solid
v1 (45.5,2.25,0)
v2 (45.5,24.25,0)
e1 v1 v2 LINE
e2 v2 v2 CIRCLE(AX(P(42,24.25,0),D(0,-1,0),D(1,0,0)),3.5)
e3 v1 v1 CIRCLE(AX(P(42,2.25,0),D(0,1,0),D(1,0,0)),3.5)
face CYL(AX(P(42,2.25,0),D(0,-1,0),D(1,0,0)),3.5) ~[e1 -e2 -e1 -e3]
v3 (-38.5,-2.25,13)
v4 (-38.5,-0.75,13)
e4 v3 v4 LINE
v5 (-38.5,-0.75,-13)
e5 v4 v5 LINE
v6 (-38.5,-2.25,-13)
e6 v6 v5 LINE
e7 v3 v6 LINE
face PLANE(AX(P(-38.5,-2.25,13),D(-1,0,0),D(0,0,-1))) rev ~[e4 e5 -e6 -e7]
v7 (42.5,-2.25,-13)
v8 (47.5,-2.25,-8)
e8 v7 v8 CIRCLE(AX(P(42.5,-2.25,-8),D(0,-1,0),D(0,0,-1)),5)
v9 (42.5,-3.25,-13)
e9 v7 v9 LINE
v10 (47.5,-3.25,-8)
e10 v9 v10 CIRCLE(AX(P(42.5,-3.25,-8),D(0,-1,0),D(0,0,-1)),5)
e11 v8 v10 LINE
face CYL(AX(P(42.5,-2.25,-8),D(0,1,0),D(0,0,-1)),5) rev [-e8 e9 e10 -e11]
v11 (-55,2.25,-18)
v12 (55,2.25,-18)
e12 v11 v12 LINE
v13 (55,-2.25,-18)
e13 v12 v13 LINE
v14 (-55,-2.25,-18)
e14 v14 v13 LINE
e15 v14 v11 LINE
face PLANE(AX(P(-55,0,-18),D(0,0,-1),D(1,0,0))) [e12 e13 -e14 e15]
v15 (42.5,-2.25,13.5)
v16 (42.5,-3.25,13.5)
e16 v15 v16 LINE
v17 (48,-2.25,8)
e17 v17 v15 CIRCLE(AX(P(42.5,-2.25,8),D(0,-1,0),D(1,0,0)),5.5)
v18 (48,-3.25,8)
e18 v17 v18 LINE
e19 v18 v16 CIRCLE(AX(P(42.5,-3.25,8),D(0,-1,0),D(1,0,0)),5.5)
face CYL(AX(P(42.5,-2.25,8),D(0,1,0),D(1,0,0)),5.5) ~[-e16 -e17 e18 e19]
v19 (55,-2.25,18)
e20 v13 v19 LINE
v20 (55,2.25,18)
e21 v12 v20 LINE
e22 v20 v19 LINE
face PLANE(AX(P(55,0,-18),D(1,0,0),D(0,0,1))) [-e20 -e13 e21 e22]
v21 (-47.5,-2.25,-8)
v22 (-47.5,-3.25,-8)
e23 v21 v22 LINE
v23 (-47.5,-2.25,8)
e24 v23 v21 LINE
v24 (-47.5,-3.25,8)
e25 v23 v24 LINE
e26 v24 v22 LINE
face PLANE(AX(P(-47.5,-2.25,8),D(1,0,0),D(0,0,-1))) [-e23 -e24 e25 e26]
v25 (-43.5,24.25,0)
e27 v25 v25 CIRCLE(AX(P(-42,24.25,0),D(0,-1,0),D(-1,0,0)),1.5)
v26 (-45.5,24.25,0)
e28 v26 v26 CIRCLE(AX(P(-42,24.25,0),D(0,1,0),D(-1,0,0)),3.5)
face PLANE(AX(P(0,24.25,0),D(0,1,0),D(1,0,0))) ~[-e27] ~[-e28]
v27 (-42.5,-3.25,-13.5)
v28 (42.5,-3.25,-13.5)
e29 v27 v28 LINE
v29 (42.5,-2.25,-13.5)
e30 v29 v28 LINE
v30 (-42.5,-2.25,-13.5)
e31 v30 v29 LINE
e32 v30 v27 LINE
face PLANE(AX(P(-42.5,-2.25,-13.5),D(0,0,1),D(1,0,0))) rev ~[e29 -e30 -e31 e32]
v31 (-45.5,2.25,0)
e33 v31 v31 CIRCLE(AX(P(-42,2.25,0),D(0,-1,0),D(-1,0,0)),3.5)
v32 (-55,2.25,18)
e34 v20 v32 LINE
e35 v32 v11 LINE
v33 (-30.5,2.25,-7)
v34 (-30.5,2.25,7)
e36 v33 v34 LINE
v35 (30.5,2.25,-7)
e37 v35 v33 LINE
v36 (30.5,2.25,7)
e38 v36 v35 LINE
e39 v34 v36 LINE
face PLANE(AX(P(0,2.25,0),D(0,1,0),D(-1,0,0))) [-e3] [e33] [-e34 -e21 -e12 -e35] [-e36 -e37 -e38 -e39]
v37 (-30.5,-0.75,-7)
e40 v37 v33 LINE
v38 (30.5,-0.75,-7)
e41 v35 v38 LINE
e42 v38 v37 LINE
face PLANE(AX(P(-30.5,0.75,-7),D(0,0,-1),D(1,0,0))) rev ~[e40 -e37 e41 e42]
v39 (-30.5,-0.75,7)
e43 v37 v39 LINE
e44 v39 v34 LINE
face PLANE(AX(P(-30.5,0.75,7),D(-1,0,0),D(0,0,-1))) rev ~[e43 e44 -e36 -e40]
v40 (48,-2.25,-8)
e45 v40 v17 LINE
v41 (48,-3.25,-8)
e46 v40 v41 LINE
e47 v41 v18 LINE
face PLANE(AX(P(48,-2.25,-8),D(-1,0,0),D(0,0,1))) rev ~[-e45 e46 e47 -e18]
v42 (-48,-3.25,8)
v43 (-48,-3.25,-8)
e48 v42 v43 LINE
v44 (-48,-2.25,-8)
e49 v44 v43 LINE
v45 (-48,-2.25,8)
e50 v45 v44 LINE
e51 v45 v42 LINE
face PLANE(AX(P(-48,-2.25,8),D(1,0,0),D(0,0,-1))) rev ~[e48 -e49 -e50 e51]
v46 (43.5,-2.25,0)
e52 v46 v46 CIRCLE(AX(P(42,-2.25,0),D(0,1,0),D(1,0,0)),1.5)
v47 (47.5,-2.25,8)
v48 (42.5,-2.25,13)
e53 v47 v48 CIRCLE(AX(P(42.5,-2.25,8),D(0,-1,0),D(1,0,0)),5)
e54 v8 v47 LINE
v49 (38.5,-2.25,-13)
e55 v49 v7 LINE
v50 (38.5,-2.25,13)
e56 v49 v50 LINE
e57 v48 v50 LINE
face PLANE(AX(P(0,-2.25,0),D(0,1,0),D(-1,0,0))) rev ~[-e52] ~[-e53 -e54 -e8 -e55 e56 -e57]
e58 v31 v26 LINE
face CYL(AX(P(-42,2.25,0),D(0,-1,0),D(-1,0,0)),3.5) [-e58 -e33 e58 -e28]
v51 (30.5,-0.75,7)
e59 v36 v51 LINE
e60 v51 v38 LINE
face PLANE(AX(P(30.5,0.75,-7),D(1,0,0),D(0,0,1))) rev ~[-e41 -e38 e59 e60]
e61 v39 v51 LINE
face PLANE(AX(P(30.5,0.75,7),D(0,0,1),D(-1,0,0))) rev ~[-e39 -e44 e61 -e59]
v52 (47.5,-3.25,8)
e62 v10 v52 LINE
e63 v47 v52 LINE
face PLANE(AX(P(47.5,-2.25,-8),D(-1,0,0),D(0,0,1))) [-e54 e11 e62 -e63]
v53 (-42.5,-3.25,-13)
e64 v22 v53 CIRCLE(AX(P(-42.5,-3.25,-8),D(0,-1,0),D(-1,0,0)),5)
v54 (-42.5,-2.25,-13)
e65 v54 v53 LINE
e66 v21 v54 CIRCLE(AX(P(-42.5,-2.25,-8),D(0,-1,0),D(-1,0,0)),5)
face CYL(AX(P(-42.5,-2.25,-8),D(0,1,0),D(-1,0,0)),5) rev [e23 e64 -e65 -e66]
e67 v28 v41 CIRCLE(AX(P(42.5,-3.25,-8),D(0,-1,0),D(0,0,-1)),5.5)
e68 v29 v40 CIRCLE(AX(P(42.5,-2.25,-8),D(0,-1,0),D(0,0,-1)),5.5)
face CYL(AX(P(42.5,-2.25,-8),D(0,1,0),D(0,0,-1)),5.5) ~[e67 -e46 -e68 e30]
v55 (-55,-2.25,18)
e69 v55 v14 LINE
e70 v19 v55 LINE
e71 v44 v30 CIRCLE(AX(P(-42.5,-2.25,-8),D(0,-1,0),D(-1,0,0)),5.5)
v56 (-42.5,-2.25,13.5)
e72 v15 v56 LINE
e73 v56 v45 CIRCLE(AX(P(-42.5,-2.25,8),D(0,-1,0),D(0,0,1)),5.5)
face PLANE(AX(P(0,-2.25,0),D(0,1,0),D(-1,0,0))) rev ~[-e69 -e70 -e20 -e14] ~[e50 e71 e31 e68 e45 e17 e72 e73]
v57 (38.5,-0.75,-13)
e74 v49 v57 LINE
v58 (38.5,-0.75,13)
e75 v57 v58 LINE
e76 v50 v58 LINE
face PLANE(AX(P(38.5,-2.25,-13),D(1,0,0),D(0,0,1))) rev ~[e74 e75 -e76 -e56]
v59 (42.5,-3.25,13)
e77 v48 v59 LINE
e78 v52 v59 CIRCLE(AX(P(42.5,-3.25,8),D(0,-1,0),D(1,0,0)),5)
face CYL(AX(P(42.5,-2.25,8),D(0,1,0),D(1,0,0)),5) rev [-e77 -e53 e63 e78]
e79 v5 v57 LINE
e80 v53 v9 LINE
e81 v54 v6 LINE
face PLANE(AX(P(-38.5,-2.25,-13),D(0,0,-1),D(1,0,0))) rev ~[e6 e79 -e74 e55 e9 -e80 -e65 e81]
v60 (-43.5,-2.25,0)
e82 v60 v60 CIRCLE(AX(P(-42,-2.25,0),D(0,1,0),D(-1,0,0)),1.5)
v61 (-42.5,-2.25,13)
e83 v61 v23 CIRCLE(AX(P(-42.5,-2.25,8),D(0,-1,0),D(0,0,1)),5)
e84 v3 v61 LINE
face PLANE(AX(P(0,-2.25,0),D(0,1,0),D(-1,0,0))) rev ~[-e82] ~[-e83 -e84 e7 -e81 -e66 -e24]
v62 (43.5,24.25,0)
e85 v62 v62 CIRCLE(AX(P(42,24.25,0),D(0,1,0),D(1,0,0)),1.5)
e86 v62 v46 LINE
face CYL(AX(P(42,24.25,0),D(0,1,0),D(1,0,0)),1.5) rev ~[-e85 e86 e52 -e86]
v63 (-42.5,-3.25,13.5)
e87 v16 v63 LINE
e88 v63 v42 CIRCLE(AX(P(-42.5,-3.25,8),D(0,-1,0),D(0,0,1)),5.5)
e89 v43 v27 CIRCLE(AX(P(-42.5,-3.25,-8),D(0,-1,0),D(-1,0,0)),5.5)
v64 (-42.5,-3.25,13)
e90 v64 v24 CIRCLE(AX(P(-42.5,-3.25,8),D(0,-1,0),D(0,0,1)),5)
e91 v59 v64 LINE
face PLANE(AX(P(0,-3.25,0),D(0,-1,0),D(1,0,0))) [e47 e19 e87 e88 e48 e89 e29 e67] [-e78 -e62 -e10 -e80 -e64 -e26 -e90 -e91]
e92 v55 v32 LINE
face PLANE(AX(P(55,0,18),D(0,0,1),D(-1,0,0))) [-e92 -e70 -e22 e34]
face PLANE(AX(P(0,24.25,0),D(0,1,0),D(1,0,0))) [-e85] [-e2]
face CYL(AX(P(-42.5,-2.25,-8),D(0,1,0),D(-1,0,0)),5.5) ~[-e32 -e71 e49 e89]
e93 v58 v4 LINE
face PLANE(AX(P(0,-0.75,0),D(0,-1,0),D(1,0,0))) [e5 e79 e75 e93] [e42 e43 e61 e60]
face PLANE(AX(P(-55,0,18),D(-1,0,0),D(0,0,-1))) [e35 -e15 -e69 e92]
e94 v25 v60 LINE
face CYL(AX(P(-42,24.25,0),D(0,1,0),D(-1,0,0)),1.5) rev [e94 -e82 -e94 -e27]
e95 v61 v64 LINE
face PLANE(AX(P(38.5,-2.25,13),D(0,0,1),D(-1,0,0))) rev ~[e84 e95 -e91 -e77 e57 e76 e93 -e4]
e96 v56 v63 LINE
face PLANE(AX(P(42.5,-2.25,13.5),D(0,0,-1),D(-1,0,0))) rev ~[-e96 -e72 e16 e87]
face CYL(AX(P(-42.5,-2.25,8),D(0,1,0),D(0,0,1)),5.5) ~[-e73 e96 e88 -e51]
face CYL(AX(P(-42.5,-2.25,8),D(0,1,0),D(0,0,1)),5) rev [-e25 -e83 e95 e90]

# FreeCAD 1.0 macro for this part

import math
import FreeCAD as App
import Part
import Sketcher


def add_polygon(sketch, points):
    """Adds a closed chain of lines whose ends are joined by coincident constraints."""
    first, n = sketch.GeometryCount, len(points)
    for a, b in zip(points, points[1:] + points[:1]):
        sketch.addGeometry(Part.LineSegment(App.Vector(*a, 0), App.Vector(*b, 0)), False)
    for i in range(n):
        sketch.addConstraint(Sketcher.Constraint("Coincident", first + i, 2, first + (i + 1) % n, 1))

doc = App.newDocument("Part")
params = doc.addObject("Spreadsheet::Sheet", "Params")
for row, (alias, value) in enumerate([
    ("sketch1_width", "110 mm"),
    ("sketch1_height", "36 mm"),
    ("pad1_length", "4.5 mm"),
    ("sketch2_width", "61 mm"),
    ("sketch2_height", "14 mm"),
    ("sketch3_diameter", "7 mm"),
    ("pad2_length", "22 mm"),
    ("sketch4_diameter", "3 mm"),
    ("sketch5_radius", "5 mm"),
    ("sketch5_radius2", "5.5 mm"),
    ("sketch5_width", "85 mm"),
    ("sketch5_height", "16 mm"),
    ("pad3_length", "1 mm"),
    ("sketch6_width", "77 mm"),
    ("sketch6_height", "26 mm"),
    ("pocket3_length", "1.5 mm"),
], start=1):
    params.set(f"A{row}", alias)
    params.set(f"B{row}", "=" + value)
    params.setAlias(f"B{row}", alias)

body = doc.addObject("PartDesign::Body", "Body")

sketch1 = doc.addObject("Sketcher::SketchObject", "Sketch")
body.addObject(sketch1)
sketch1.AttachmentSupport = (doc.XZ_Plane, [""])
sketch1.MapMode = "FlatFace"
add_polygon(sketch1, [(55, -18), (-55, -18), (-55, 18), (55, 18)])
sketch1.addConstraint([
    Sketcher.Constraint("Horizontal", 0),
    Sketcher.Constraint("Vertical", 1),
    Sketcher.Constraint("Horizontal", 2),
    Sketcher.Constraint("Vertical", 3),
    Sketcher.Constraint("Symmetric", 0, 2, 2, 2, -1, 1),
    Sketcher.Constraint("DistanceX", 0, 2, 0, 1, 110.0),
    Sketcher.Constraint("DistanceY", 1, 1, 1, 2, 36.0),
])
sketch1.setExpression("Constraints[9]", "Params.sketch1_width")
sketch1.setExpression("Constraints[10]", "Params.sketch1_height")
pad1 = doc.addObject("PartDesign::Pad", "Pad")
body.addObject(pad1)
pad1.Profile = sketch1
pad1.setExpression("Length", "Params.pad1_length")
pad1.Midplane = True

sketch2 = doc.addObject("Sketcher::SketchObject", "Sketch001")
body.addObject(sketch2)
sketch2.AttachmentSupport = (doc.XZ_Plane, [""])
sketch2.MapMode = "FlatFace"
sketch2.AttachmentOffset = App.Placement(App.Vector(0, 0, -0.75), App.Rotation())
add_polygon(sketch2, [(30, -7), (-30, -7), (-30, 7), (30, 7)])
sketch2.addConstraint([
    Sketcher.Constraint("Horizontal", 0),
    Sketcher.Constraint("Vertical", 1),
    Sketcher.Constraint("Horizontal", 2),
    Sketcher.Constraint("Vertical", 3),
    Sketcher.Constraint("Symmetric", 0, 2, 2, 2, -1, 1),
    Sketcher.Constraint("DistanceX", 0, 2, 0, 1, 61.0),
    Sketcher.Constraint("DistanceY", 1, 1, 1, 2, 14.0),
])
sketch2.setExpression("Constraints[9]", "Params.sketch2_width")
sketch2.setExpression("Constraints[10]", "Params.sketch2_height")
pocket1 = doc.addObject("PartDesign::Pocket", "Pocket")
body.addObject(pocket1)
pocket1.Profile = sketch2
pocket1.Type = "ThroughAll"
pocket1.Midplane = True

sketch3 = doc.addObject("Sketcher::SketchObject", "Sketch002")
body.addObject(sketch3)
sketch3.AttachmentSupport = (doc.XZ_Plane, [""])
sketch3.MapMode = "FlatFace"
sketch3.AttachmentOffset = App.Placement(App.Vector(0, 0, -2.25), App.Rotation())
sketch3.addGeometry(Part.Circle(App.Vector(42, 0, 0), App.Vector(0, 0, 1), 3.5), False)
sketch3.addConstraint([
    Sketcher.Constraint("PointOnObject", 0, 3, -1),
    Sketcher.Constraint("Diameter", 0, 7.0),
    Sketcher.Constraint("DistanceX", -1, 1, 0, 3, 42.0),
])
sketch3.setExpression("Constraints[1]", "Params.sketch3_diameter")
pad2 = doc.addObject("PartDesign::Pad", "Pad001")
body.addObject(pad2)
pad2.Profile = sketch3
pad2.setExpression("Length", "Params.pad2_length")
pad2.Reversed = True

sketch4 = doc.addObject("Sketcher::SketchObject", "Sketch003")
body.addObject(sketch4)
sketch4.AttachmentSupport = (doc.XZ_Plane, [""])
sketch4.MapMode = "FlatFace"
sketch4.AttachmentOffset = App.Placement(App.Vector(0, 0, -24.25), App.Rotation())
sketch4.addGeometry(Part.Circle(App.Vector(42, 0, 0), App.Vector(0, 0, 1), 1.5), False)
sketch4.addConstraint([
    Sketcher.Constraint("PointOnObject", 0, 3, -1),
    Sketcher.Constraint("Diameter", 0, 3.0),
    Sketcher.Constraint("DistanceX", -1, 1, 0, 3, 42.0),
])
sketch4.setExpression("Constraints[1]", "Params.sketch4_diameter")
pocket2 = doc.addObject("PartDesign::Pocket", "Pocket001")
body.addObject(pocket2)
pocket2.Profile = sketch4
pocket2.Type = "ThroughAll"
pocket2.Reversed = True
doc.recompute()

mirrored = doc.addObject("PartDesign::Mirrored", "Mirrored")
body.addObject(mirrored)
mirrored.Originals = [pad2, pocket2]
mirrored.MirrorPlane = (doc.YZ_Plane, [""])
body.Tip = mirrored

sketch5 = doc.addObject("Sketcher::SketchObject", "Sketch004")
body.addObject(sketch5)
sketch5.AttachmentSupport = (doc.XZ_Plane, [""])
sketch5.MapMode = "FlatFace"
sketch5.AttachmentOffset = App.Placement(App.Vector(0, 0, 2.25), App.Rotation())
sketch5.addGeometry([
    Part.ArcOfCircle(Part.Circle(App.Vector(-42, -8, 0), App.Vector(0, 0, 1), 6), math.radians(180), math.radians(270)),
    Part.LineSegment(App.Vector(-42, -14, 0), App.Vector(42, -14, 0)),
    Part.ArcOfCircle(Part.Circle(App.Vector(42, -8, 0), App.Vector(0, 0, 1), 6), math.radians(-90), math.radians(0)),
    Part.LineSegment(App.Vector(48, -8, 0), App.Vector(48, 8, 0)),
    Part.ArcOfCircle(Part.Circle(App.Vector(42, 8, 0), App.Vector(0, 0, 1), 6), math.radians(0), math.radians(90)),
    Part.LineSegment(App.Vector(42, 14, 0), App.Vector(-42, 14, 0)),
    Part.ArcOfCircle(Part.Circle(App.Vector(-42, 8, 0), App.Vector(0, 0, 1), 6), math.radians(90), math.radians(180)),
    Part.LineSegment(App.Vector(-48, 8, 0), App.Vector(-48, -8, 0)),
    Part.LineSegment(App.Vector(42, -13, 0), App.Vector(-42, -13, 0)),
    Part.ArcOfCircle(Part.Circle(App.Vector(-42, -8, 0), App.Vector(0, 0, 1), 5), math.radians(180), math.radians(270)),
    Part.LineSegment(App.Vector(-48, -8, 0), App.Vector(-48, 8, 0)),
    Part.ArcOfCircle(Part.Circle(App.Vector(-42, 8, 0), App.Vector(0, 0, 1), 5), math.radians(90), math.radians(180)),
    Part.LineSegment(App.Vector(-42, 13, 0), App.Vector(42, 13, 0)),
    Part.ArcOfCircle(Part.Circle(App.Vector(42, 8, 0), App.Vector(0, 0, 1), 5), math.radians(0), math.radians(90)),
    Part.LineSegment(App.Vector(48, 8, 0), App.Vector(48, -8, 0)),
    Part.ArcOfCircle(Part.Circle(App.Vector(42, -8, 0), App.Vector(0, 0, 1), 5), math.radians(-90), math.radians(0)),
], False)
sketch5.addConstraint([
    Sketcher.Constraint("Tangent", 0, 2, 1, 1),
    Sketcher.Constraint("Tangent", 1, 2, 2, 1),
    Sketcher.Constraint("Tangent", 2, 2, 3, 1),
    Sketcher.Constraint("Tangent", 3, 2, 4, 1),
    Sketcher.Constraint("Tangent", 4, 2, 5, 1),
    Sketcher.Constraint("Tangent", 5, 2, 6, 1),
    Sketcher.Constraint("Tangent", 6, 2, 7, 1),
    Sketcher.Constraint("Tangent", 7, 2, 0, 1),
    Sketcher.Constraint("Tangent", 8, 2, 9, 2),
    Sketcher.Constraint("Tangent", 9, 1, 10, 1),
    Sketcher.Constraint("Tangent", 10, 2, 11, 2),
    Sketcher.Constraint("Tangent", 11, 1, 12, 1),
    Sketcher.Constraint("Tangent", 12, 2, 13, 2),
    Sketcher.Constraint("Tangent", 13, 1, 14, 1),
    Sketcher.Constraint("Tangent", 14, 2, 15, 2),
    Sketcher.Constraint("Tangent", 15, 1, 8, 1),
    Sketcher.Constraint("Horizontal", 1),
    Sketcher.Constraint("Vertical", 3),
    Sketcher.Constraint("Horizontal", 5),
    Sketcher.Constraint("Vertical", 7),
    Sketcher.Constraint("Horizontal", 8),
    Sketcher.Constraint("Vertical", 10),
    Sketcher.Constraint("Horizontal", 12),
    Sketcher.Constraint("Vertical", 14),
    Sketcher.Constraint("Coincident", 9, 3, 0, 3),
    Sketcher.Constraint("Coincident", 11, 3, 6, 3),
    Sketcher.Constraint("Coincident", 13, 3, 4, 3),
    Sketcher.Constraint("Equal", 0, 2),
    Sketcher.Constraint("Equal", 2, 4),
    Sketcher.Constraint("Equal", 4, 6),
    Sketcher.Constraint("Equal", 13, 15),
    Sketcher.Constraint("Symmetric", 0, 3, 4, 3, -1, 1),
    Sketcher.Constraint("Radius", 9, 5.0),
    Sketcher.Constraint("Radius", 0, 5.5),
    Sketcher.Constraint("DistanceX", 1, 1, 1, 2, 85.0),
    Sketcher.Constraint("DistanceY", 3, 1, 3, 2, 16.0),
])
sketch5.setExpression("Constraints[32]", "Params.sketch5_radius")
sketch5.setExpression("Constraints[33]", "Params.sketch5_radius2")
sketch5.setExpression("Constraints[34]", "Params.sketch5_width")
sketch5.setExpression("Constraints[35]", "Params.sketch5_height")
pad3 = doc.addObject("PartDesign::Pad", "Pad002")
body.addObject(pad3)
pad3.Profile = sketch5
pad3.setExpression("Length", "Params.pad3_length")

sketch6 = doc.addObject("Sketcher::SketchObject", "Sketch005")
body.addObject(sketch6)
sketch6.AttachmentSupport = (doc.XZ_Plane, [""])
sketch6.MapMode = "FlatFace"
sketch6.AttachmentOffset = App.Placement(App.Vector(0, 0, 2.25), App.Rotation())
add_polygon(sketch6, [(38, -13), (38, 13), (-38, 13), (-38, -13)])
sketch6.addConstraint([
    Sketcher.Constraint("Vertical", 0),
    Sketcher.Constraint("Horizontal", 1),
    Sketcher.Constraint("Vertical", 2),
    Sketcher.Constraint("Horizontal", 3),
    Sketcher.Constraint("Symmetric", 0, 2, 2, 2, -1, 1),
    Sketcher.Constraint("DistanceX", 1, 2, 1, 1, 77.0),
    Sketcher.Constraint("DistanceY", 0, 1, 0, 2, 26.0),
])
sketch6.setExpression("Constraints[9]", "Params.sketch6_width")
sketch6.setExpression("Constraints[10]", "Params.sketch6_height")
pocket3 = doc.addObject("PartDesign::Pocket", "Pocket002")
body.addObject(pocket3)
pocket3.Profile = sketch6
pocket3.setExpression("Length", "Params.pocket3_length")

doc.recompute()
